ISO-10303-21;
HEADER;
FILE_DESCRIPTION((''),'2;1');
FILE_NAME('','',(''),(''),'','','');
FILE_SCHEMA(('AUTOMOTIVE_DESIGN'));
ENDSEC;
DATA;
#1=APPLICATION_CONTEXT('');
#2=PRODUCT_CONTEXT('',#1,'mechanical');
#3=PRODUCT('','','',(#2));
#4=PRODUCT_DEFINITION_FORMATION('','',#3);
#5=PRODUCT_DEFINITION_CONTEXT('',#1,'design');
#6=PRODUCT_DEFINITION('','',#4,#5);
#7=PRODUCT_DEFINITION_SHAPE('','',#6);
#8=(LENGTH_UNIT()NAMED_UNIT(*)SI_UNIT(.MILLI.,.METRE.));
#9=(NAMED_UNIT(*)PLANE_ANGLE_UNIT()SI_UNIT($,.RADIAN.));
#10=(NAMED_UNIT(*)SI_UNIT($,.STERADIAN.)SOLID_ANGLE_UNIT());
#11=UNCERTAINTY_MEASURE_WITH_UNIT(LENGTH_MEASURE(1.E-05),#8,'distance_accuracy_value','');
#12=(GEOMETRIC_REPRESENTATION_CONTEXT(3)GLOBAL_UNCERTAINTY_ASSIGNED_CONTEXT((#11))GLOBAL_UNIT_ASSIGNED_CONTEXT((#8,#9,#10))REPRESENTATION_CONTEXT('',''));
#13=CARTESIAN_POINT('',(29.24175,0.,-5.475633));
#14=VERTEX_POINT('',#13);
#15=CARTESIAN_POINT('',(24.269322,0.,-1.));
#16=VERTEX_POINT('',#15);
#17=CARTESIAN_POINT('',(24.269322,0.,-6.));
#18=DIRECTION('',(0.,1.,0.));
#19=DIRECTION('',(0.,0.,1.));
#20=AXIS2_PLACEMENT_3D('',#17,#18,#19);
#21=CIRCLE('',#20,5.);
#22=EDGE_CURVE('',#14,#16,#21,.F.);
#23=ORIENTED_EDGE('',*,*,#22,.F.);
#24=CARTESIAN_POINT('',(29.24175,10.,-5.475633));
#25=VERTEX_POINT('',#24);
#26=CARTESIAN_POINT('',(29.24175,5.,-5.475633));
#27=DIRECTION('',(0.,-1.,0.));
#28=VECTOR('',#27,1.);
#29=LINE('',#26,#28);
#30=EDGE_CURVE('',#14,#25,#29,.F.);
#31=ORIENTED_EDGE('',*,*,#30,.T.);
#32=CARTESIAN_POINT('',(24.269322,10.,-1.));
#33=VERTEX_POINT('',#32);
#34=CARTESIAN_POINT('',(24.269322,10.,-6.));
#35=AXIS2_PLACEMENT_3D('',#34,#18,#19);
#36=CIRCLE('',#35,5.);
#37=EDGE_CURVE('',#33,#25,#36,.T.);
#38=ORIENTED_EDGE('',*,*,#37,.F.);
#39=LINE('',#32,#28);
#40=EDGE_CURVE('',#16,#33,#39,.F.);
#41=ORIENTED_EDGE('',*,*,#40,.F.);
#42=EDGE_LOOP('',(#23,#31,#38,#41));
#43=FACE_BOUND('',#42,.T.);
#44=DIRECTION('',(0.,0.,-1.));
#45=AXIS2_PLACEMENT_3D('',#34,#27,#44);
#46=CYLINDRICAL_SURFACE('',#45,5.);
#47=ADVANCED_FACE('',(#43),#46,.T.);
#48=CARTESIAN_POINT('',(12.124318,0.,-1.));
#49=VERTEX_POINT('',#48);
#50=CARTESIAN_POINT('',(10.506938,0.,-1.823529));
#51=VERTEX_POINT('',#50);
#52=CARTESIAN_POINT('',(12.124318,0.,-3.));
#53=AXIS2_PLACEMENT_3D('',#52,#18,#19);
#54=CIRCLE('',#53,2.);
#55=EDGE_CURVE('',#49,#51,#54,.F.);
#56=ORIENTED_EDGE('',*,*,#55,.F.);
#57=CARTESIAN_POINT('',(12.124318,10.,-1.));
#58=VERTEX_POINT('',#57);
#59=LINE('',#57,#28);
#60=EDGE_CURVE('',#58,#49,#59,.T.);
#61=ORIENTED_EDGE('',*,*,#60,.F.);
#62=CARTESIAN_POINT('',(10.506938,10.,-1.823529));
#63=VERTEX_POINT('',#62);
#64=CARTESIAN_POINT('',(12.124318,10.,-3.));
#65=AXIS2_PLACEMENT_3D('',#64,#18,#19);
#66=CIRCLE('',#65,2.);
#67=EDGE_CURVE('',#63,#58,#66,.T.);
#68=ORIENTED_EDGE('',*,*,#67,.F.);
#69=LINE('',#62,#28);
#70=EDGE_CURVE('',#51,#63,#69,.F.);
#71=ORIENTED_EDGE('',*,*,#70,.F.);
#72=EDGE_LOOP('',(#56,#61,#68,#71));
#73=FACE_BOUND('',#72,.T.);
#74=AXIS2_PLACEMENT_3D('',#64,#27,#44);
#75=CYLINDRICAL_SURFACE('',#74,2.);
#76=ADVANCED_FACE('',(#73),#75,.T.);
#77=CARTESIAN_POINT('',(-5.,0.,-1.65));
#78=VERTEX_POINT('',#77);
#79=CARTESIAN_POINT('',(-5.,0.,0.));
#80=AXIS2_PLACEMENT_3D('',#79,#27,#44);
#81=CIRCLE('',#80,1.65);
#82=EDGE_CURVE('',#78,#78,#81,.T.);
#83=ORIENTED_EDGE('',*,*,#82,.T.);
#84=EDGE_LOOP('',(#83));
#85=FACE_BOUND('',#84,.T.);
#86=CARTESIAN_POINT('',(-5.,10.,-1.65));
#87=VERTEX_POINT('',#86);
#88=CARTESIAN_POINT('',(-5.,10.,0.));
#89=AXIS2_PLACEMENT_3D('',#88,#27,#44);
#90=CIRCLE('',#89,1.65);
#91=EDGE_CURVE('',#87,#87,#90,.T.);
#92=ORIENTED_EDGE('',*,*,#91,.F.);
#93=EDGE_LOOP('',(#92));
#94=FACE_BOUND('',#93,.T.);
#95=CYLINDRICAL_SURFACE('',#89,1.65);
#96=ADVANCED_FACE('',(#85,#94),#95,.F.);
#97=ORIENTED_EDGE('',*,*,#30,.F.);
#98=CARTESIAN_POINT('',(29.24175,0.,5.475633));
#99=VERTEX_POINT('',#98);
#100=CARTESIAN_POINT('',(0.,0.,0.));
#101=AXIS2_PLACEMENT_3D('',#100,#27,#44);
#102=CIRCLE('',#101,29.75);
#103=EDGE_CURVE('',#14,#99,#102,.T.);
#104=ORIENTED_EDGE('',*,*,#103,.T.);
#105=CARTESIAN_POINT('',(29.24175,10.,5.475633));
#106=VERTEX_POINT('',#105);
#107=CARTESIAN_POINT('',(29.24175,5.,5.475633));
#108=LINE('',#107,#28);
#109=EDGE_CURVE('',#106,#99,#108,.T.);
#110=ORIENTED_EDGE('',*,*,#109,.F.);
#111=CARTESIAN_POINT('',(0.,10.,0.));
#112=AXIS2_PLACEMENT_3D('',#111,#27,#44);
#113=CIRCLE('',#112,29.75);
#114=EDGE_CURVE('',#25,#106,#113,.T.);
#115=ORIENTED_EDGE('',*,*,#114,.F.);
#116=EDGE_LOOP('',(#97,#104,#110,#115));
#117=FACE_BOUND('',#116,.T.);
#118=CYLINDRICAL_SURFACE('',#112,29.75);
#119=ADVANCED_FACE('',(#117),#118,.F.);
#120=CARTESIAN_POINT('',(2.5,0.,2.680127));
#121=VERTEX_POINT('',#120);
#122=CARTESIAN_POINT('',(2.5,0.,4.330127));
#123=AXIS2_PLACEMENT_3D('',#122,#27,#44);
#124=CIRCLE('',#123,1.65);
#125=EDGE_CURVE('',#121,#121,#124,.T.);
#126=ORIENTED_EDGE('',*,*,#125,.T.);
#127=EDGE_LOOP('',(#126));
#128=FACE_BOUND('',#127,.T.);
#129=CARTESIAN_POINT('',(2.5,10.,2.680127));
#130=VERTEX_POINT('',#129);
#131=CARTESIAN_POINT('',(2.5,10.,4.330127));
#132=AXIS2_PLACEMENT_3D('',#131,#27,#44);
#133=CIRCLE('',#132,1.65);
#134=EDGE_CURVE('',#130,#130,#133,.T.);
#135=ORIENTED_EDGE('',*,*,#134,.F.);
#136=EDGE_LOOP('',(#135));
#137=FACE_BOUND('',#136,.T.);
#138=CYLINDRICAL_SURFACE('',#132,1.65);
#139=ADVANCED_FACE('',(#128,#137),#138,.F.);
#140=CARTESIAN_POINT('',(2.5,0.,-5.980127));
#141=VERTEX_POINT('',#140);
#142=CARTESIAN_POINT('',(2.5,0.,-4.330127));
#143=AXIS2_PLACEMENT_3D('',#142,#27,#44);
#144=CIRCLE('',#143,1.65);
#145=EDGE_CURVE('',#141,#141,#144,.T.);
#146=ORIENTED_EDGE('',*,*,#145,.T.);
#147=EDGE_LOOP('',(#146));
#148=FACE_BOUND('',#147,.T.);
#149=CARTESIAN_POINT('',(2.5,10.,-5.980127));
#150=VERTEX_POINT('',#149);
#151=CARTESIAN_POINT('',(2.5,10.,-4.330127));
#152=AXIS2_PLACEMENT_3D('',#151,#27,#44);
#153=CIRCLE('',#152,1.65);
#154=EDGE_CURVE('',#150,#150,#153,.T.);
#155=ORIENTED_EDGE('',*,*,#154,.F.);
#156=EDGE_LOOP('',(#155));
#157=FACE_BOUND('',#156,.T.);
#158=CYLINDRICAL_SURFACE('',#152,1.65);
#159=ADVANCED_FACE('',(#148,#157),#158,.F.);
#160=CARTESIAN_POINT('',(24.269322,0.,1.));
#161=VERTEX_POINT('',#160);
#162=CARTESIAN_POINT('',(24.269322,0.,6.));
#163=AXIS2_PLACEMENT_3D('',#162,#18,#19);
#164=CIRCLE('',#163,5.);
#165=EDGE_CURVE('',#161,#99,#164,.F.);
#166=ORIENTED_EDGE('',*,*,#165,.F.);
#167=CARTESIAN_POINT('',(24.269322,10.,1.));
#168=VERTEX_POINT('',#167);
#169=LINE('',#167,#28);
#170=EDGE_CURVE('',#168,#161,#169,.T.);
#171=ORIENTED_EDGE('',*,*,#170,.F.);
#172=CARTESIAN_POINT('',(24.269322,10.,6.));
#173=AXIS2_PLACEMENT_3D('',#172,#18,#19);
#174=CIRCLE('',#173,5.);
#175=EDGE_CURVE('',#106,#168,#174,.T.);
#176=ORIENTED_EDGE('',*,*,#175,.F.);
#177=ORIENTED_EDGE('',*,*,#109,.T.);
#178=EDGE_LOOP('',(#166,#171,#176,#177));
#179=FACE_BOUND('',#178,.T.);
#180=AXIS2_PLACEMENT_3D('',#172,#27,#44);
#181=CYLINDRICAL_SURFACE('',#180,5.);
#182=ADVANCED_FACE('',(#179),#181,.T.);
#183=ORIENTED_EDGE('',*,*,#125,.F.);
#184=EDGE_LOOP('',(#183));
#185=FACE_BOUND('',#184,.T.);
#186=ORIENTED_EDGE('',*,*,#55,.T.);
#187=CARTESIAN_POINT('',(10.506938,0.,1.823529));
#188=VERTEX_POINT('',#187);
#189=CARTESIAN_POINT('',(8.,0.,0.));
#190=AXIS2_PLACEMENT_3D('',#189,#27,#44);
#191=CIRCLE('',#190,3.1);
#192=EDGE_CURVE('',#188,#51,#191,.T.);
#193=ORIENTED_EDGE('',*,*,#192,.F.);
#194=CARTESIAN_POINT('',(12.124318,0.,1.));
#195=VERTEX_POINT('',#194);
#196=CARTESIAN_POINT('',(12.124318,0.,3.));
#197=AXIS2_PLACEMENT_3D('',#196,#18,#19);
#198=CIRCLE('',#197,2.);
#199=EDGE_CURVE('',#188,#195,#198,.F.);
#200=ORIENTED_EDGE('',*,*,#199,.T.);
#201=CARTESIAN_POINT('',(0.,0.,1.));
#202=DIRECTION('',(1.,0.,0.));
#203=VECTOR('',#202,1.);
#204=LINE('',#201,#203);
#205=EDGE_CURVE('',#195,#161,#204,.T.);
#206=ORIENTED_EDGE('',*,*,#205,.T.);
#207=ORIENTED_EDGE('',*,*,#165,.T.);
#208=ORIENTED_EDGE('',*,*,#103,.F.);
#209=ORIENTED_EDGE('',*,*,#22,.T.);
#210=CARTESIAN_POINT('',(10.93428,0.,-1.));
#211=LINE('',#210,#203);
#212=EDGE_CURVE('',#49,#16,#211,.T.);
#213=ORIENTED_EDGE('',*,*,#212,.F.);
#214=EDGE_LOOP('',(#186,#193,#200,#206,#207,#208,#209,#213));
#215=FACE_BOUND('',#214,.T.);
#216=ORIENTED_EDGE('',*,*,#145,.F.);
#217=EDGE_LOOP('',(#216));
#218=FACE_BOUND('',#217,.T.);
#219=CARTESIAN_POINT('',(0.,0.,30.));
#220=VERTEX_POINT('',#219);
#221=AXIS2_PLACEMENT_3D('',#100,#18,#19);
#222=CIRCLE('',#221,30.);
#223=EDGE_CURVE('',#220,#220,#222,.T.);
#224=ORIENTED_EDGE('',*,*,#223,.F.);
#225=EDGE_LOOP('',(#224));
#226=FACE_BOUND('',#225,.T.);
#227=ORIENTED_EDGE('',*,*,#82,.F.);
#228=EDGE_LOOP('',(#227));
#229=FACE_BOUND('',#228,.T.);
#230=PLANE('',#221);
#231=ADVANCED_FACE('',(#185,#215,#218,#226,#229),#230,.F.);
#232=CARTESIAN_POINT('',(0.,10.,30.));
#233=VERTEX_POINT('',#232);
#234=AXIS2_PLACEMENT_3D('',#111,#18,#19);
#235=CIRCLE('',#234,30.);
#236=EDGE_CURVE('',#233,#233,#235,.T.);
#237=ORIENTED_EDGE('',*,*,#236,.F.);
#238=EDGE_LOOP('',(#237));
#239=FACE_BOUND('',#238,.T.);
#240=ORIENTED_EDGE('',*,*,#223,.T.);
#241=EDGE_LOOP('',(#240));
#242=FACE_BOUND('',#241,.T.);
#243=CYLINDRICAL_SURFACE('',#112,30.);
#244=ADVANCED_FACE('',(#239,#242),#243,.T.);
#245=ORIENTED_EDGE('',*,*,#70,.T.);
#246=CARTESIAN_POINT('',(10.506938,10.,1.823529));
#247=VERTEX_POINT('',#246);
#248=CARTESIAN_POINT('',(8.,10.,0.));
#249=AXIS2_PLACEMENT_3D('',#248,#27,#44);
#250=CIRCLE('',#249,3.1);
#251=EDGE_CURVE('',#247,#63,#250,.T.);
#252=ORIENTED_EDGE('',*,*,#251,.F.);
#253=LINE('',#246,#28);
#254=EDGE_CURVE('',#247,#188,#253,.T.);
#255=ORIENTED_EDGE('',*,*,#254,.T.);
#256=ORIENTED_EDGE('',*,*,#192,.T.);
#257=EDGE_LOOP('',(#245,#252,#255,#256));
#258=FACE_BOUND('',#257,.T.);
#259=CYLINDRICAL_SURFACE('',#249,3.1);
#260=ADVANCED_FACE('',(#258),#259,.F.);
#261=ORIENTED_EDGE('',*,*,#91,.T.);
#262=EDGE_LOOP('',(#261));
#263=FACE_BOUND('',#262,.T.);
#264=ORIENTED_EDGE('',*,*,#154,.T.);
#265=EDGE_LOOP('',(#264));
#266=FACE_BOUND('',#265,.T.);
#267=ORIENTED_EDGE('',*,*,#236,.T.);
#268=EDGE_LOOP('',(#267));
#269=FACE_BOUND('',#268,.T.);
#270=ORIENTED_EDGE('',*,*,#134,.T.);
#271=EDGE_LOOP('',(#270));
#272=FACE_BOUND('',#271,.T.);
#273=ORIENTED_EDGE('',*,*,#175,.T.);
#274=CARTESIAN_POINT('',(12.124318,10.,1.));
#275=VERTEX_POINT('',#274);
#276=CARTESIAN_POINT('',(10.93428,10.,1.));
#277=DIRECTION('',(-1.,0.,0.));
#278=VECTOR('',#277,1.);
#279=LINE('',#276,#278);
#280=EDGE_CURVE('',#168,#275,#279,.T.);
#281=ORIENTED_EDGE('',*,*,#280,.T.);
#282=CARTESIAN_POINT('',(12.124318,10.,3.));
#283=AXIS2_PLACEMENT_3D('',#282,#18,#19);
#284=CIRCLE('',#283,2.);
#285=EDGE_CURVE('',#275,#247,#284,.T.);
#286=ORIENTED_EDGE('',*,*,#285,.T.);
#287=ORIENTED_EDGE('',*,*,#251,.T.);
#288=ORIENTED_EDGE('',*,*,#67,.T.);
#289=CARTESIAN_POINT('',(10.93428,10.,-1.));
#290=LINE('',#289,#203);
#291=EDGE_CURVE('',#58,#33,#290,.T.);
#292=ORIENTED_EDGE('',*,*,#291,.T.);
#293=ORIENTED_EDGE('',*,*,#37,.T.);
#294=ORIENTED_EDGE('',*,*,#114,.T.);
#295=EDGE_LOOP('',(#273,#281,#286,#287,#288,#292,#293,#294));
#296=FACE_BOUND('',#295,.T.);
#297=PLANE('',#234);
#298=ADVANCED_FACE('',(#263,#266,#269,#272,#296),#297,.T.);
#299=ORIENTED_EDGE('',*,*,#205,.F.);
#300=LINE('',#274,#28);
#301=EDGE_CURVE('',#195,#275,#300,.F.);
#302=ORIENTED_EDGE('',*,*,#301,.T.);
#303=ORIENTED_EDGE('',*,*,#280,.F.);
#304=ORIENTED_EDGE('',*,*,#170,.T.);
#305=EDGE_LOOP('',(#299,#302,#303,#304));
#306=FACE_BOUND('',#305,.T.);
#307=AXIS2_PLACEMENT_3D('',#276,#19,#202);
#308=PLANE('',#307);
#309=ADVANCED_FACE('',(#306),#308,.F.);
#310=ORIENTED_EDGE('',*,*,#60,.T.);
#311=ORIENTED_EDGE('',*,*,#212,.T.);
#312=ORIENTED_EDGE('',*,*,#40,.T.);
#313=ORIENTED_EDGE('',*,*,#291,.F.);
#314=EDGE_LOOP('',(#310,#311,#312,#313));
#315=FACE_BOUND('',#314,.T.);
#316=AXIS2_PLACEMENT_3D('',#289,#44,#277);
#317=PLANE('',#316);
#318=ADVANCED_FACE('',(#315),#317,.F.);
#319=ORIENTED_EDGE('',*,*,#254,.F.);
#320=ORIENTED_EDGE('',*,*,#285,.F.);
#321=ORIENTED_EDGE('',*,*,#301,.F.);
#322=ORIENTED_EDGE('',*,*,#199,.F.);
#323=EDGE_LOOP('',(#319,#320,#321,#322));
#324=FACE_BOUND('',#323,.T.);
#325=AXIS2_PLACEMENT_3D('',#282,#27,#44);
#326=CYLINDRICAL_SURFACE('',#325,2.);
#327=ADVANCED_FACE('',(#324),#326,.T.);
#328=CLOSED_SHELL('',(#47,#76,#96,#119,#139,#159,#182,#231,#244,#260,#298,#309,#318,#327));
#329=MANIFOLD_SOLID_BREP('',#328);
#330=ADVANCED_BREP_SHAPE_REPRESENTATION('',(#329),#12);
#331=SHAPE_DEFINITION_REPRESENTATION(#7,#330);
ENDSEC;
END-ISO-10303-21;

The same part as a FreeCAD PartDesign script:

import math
import FreeCAD as App
import Part
import Sketcher

V = App.Vector


def edges_at(feature, points):
    """Names of the edges that pass closest to the given points."""
    edges = feature.Shape.Edges
    near = lambda p: min(range(len(edges)), key=lambda i: edges[i].distToShape(Part.Vertex(*p))[0])
    return sorted({f"Edge{near(p) + 1}" for p in points})

doc = App.newDocument("Part")
body = doc.addObject("PartDesign::Body", "Body")

sketch1 = body.newObject("Sketcher::SketchObject", "Sketch")
sketch1.AttachmentSupport = (doc.getObject("XZ_Plane"), [""])
sketch1.MapMode = "FlatFace"
sketch1.addGeometry(Part.Circle(V(0, 0, 0), V(0, 0, 1), 30), False)
sketch1.addConstraint([
    Sketcher.Constraint("Coincident", 0, 3, -1, 1),
    Sketcher.Constraint("Diameter", 0, 60.0),
])
pad1 = body.newObject("PartDesign::Pad", "Pad")
pad1.Profile = sketch1
pad1.Length = 10
pad1.Reversed = True

sketch2 = body.newObject("Sketcher::SketchObject", "Sketch001")
sketch2.AttachmentSupport = (doc.getObject("XZ_Plane"), [""])
sketch2.MapMode = "FlatFace"
sketch2.addGeometry([
    Part.LineSegment(V(30.9, 1, 0), V(10.9, 1, 0)),
    Part.ArcOfCircle(Part.Circle(V(8, 0, 0), V(0, 0, 1), 3.1), math.radians(19), math.radians(341)),
    Part.LineSegment(V(10.9, -1, 0), V(30.9, -1, 0)),
    Part.LineSegment(V(30.9, -1, 0), V(30.9, 1, 0)),
], False)
sketch2.addConstraint([
    Sketcher.Constraint("Coincident", 0, 2, 1, 1),
    Sketcher.Constraint("Coincident", 1, 2, 2, 1),
    Sketcher.Constraint("Coincident", 2, 2, 3, 1),
    Sketcher.Constraint("Coincident", 3, 2, 0, 1),
    Sketcher.Constraint("Horizontal", 0),
    Sketcher.Constraint("Horizontal", 2),
    Sketcher.Constraint("Vertical", 3),
    Sketcher.Constraint("Symmetric", 0, 2, 1, 2, -1),
    Sketcher.Constraint("Radius", 1, 3.1),
    Sketcher.Constraint("DistanceX", 0, 2, 0, 1, 20.0),
    Sketcher.Constraint("DistanceY", 3, 1, 3, 2, 2.0),
    Sketcher.Constraint("DistanceX", -1, 1, 1, 3, 8.0),
])
pocket1 = body.newObject("PartDesign::Pocket", "Pocket")
pocket1.Profile = sketch2
pocket1.Length = 10
doc.recompute()

fillet = body.newObject("PartDesign::Fillet", "Fillet")
fillet.Base = (pocket1, edges_at(pocket1, [(10.934, 5, 1), (10.934, 5, -1)]))
fillet.Radius = 2
doc.recompute()

fillet2 = body.newObject("PartDesign::Fillet", "Fillet001")
fillet2.Base = (fillet, edges_at(fillet, [(29.983, 5, 1), (29.983, 5, -1)]))
fillet2.Radius = 5

sketch3 = body.newObject("Sketcher::SketchObject", "Sketch002")
sketch3.AttachmentSupport = (doc.getObject("XZ_Plane"), [""])
sketch3.MapMode = "FlatFace"
sketch3.addGeometry([
    Part.Circle(V(-5, 0, 0), V(0, 0, 1), 1.6),
    Part.Circle(V(2.5, 4.3, 0), V(0, 0, 1), 1.6),
    Part.Circle(V(2.5, -4.3, 0), V(0, 0, 1), 1.6),
], False)
sketch3.addConstraint([
    Sketcher.Constraint("Equal", 0, 1),
    Sketcher.Constraint("Equal", 1, 2),
    Sketcher.Constraint("Symmetric", 1, 3, 2, 3, -1),
    Sketcher.Constraint("PointOnObject", 0, 3, -1),
    Sketcher.Constraint("Diameter", 0, 3.3),
    Sketcher.Constraint("DistanceX", 0, 3, -1, 1, 5.0),
    Sketcher.Constraint("DistanceX", -1, 1, 1, 3, 2.5),
    Sketcher.Constraint("DistanceY", -1, 1, 1, 3, 4.330127),
])
pocket2 = body.newObject("PartDesign::Pocket", "Pocket001")
pocket2.Profile = sketch3
pocket2.Length = 10

sketch4 = body.newObject("Sketcher::SketchObject", "Sketch003")
sketch4.AttachmentSupport = (doc.getObject("XZ_Plane"), [""])
sketch4.MapMode = "FlatFace"
sketch4.addGeometry([
    Part.Circle(V(0, 0, 0), V(0, 0, 1), 30),
    Part.Circle(V(0, 0, 0), V(0, 0, 1), 30),
], False)
sketch4.addConstraint([
    Sketcher.Constraint("Coincident", 0, 3, -1, 1),
    Sketcher.Constraint("Coincident", 1, 3, -1, 1),
    Sketcher.Constraint("Diameter", 0, 60.0),
    Sketcher.Constraint("Diameter", 1, 59.5),
])
pad2 = body.newObject("PartDesign::Pad", "Pad001")
pad2.Profile = sketch4
pad2.Length = 10
pad2.Reversed = True

doc.recompute()
